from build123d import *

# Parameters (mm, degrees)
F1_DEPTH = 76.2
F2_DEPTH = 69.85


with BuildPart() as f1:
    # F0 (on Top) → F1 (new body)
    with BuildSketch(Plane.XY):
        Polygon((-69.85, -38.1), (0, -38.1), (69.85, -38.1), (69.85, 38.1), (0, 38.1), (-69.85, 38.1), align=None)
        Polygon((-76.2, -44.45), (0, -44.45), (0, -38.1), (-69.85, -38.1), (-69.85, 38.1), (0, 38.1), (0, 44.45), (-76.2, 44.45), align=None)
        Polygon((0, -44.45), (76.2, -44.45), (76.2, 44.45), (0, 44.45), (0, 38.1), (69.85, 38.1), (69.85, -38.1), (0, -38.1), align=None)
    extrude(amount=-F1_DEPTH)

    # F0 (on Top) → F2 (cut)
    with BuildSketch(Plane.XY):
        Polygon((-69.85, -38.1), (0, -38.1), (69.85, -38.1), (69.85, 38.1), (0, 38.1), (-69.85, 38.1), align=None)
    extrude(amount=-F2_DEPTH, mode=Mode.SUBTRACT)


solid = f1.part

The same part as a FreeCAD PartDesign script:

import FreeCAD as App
import Part
import Sketcher

V = App.Vector
Q = App.Units.Quantity


def add_polygon(sketch, points):
    """Adds a closed chain of lines whose ends are joined by coincident constraints."""
    first, n = sketch.GeometryCount, len(points)
    for a, b in zip(points, points[1:] + points[:1]):
        sketch.addGeometry(Part.LineSegment(App.Vector(*a, 0), App.Vector(*b, 0)), False)
    for i in range(n):
        sketch.addConstraint(Sketcher.Constraint("Coincident", first + i, 2, first + (i + 1) % n, 1))

doc = App.newDocument("Part")
body = doc.addObject("PartDesign::Body", "Body")

# Sketch on XY plane
sketch1 = body.newObject("Sketcher::SketchObject", "Sketch")
sketch1.AttachmentSupport = (doc.getObject("XY_Plane"), [""])
sketch1.MapMode = "FlatFace"
add_polygon(sketch1, [(-76, 44), (-76, -44), (76, -44), (76, 44)])  # lines 0-3
sketch1.addConstraint([
    Sketcher.Constraint("Vertical", 0),
    Sketcher.Constraint("Horizontal", 1),
    Sketcher.Constraint("Vertical", 2),
    Sketcher.Constraint("Horizontal", 3),
    Sketcher.Constraint("Symmetric", 0, 2, 2, 2, -1, 1),
    Sketcher.Constraint("DistanceX", 1, 1, 1, 2, Q("6 in")),
    Sketcher.Constraint("DistanceY", 0, 2, 0, 1, Q("3.5 in")),
])
pad1 = body.newObject("PartDesign::Pad", "Pad")
pad1.Profile = sketch1
pad1.Length = Q("3 in")
pad1.Reversed = True

# Sketch on XY plane
sketch2 = body.newObject("Sketcher::SketchObject", "Sketch001")
sketch2.AttachmentSupport = (doc.getObject("XY_Plane"), [""])
sketch2.MapMode = "FlatFace"
add_polygon(sketch2, [(-70, -38), (70, -38), (70, 38), (-70, 38)])  # lines 0-3
sketch2.addConstraint([
    Sketcher.Constraint("Horizontal", 0),
    Sketcher.Constraint("Vertical", 1),
    Sketcher.Constraint("Horizontal", 2),
    Sketcher.Constraint("Vertical", 3),
    Sketcher.Constraint("Symmetric", 0, 2, 2, 2, -1, 1),
    Sketcher.Constraint("DistanceY", 1, 1, 1, 2, Q("3 in")),
    Sketcher.Constraint("DistanceX", 0, 1, 0, 2, Q("5.5 in")),
])
pocket1 = body.newObject("PartDesign::Pocket", "Pocket")
pocket1.Profile = sketch2
pocket1.Length = Q("2.75 in")

doc.recompute()
